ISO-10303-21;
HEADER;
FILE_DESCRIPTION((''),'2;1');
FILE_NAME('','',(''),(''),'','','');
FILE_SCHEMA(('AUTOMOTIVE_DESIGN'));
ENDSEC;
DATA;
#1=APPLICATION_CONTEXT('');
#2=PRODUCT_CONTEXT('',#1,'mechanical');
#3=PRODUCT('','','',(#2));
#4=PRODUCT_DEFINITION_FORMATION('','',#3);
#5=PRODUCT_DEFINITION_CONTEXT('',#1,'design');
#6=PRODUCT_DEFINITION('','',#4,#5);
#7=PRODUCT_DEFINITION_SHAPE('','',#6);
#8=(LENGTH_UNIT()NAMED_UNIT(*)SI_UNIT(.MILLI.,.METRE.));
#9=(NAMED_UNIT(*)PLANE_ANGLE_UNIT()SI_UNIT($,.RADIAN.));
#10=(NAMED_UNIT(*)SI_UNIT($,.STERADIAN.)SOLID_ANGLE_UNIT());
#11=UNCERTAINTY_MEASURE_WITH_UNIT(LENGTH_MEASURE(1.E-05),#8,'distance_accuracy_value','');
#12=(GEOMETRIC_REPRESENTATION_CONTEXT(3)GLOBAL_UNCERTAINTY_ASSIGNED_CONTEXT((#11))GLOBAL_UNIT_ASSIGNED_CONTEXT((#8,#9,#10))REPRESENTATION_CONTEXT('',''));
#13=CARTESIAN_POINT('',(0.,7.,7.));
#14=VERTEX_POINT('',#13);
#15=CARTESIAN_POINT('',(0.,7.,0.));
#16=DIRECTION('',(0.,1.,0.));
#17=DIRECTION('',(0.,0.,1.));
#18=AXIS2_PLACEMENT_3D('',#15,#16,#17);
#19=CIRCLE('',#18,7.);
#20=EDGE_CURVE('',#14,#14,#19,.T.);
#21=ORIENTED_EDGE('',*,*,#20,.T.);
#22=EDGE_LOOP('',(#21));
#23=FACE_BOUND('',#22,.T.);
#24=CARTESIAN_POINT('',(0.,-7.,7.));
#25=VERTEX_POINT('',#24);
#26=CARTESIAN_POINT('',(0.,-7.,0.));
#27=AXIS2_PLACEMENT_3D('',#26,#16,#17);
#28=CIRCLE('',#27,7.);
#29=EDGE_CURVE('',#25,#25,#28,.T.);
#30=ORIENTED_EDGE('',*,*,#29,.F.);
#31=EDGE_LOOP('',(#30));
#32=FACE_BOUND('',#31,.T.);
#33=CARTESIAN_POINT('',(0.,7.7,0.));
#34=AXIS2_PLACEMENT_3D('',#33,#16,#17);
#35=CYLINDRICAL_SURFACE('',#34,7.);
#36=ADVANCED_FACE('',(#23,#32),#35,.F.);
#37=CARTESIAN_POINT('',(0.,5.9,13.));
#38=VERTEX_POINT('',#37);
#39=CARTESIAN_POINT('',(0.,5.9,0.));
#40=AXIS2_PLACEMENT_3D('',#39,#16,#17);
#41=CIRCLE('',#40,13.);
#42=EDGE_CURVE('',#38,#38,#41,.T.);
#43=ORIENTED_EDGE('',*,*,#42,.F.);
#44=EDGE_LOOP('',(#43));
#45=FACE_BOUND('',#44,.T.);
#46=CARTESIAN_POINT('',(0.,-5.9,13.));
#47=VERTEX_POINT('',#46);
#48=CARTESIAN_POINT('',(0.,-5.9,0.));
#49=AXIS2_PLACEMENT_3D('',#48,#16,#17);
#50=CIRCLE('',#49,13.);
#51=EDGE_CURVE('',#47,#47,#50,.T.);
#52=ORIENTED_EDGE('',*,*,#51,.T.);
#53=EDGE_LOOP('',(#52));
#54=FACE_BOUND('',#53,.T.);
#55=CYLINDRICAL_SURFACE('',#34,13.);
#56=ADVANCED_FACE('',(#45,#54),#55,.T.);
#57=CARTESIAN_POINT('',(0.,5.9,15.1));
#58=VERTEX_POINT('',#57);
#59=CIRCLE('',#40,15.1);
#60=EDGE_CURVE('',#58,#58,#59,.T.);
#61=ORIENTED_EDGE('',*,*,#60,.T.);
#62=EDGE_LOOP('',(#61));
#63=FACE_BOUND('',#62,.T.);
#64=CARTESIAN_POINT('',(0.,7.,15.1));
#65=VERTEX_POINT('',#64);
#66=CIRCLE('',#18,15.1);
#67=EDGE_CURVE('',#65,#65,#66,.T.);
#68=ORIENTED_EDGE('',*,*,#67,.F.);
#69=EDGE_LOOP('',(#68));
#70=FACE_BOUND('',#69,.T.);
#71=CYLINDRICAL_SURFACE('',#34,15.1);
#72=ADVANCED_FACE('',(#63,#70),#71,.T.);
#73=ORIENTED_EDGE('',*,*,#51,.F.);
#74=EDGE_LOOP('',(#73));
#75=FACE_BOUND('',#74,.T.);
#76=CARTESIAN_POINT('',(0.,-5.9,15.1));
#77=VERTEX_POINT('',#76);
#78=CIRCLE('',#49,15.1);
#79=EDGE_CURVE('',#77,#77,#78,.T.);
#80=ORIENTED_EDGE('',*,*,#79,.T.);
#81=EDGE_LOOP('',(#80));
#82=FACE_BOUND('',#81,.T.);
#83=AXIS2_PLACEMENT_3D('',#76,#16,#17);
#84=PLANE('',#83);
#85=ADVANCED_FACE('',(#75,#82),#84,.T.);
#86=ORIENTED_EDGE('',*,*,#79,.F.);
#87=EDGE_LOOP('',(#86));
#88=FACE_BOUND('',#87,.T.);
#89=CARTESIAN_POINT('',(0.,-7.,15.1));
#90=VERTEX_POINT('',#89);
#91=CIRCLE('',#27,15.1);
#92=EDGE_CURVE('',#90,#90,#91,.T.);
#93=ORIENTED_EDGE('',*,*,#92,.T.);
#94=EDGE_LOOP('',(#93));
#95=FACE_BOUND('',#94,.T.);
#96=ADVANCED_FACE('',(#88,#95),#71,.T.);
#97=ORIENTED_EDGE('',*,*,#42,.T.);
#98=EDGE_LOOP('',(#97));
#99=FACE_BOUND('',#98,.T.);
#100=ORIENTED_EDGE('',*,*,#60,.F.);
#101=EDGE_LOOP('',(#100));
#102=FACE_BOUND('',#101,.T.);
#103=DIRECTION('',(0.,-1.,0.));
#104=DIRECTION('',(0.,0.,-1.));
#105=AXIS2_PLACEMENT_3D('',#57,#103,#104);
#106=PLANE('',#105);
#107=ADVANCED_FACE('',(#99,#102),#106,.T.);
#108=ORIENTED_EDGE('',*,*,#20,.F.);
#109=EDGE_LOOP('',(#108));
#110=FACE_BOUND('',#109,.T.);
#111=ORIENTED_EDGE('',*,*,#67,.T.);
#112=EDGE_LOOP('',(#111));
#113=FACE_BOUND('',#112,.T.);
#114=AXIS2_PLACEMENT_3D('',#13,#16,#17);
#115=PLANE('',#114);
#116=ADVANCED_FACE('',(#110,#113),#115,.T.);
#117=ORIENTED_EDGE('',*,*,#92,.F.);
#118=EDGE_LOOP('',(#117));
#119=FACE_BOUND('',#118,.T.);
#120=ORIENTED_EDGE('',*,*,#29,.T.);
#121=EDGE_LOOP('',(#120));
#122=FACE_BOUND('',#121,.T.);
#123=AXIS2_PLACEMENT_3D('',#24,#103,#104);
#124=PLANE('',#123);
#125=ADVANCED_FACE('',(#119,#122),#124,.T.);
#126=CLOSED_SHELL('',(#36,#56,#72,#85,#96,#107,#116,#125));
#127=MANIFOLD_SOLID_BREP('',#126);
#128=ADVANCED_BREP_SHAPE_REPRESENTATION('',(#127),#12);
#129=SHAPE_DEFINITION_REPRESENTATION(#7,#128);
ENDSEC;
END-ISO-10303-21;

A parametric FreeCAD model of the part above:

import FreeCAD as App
import Part
import Sketcher
Q = App.Units.Quantity


def add_polygon(sketch, points):
    """Adds a closed chain of lines whose ends are joined by coincident constraints."""
    first, n = sketch.GeometryCount, len(points)
    for a, b in zip(points, points[1:] + points[:1]):
        sketch.addGeometry(Part.LineSegment(App.Vector(*a, 0), App.Vector(*b, 0)), False)
    for i in range(n):
        sketch.addConstraint(Sketcher.Constraint("Coincident", first + i, 2, first + (i + 1) % n, 1))

doc = App.newDocument("Part")
body = doc.addObject("PartDesign::Body", "Body")

# Sketch on YZ plane
sketch1 = body.newObject("Sketcher::SketchObject", "Sketch")
sketch1.AttachmentSupport = (doc.getObject("YZ_Plane"), [""])
sketch1.MapMode = "FlatFace"
add_polygon(sketch1, [(-7, 7), (7, 7), (7, 15.1), (5.9, 15.1), (5.9, 13), (-5.9, 13), (-5.9, 15.1), (-7, 15.1)])  # lines 0-7
sketch1.addConstraint([
    Sketcher.Constraint("Horizontal", 0),
    Sketcher.Constraint("Vertical", 1),
    Sketcher.Constraint("Horizontal", 2),
    Sketcher.Constraint("Vertical", 3),
    Sketcher.Constraint("Horizontal", 4),
    Sketcher.Constraint("Vertical", 5),
    Sketcher.Constraint("Horizontal", 6),
    Sketcher.Constraint("Vertical", 7),
    Sketcher.Constraint("Symmetric", 2, 2, 5, 2, -2),
    Sketcher.Constraint("Equal", 2, 6),
    Sketcher.Constraint("DistanceX", 0, 1, 0, 2, Q("14 mm")),
    Sketcher.Constraint("DistanceX", 2, 2, 2, 1, Q("1.1 mm")),
    Sketcher.Constraint("DistanceY", 1, 1, 1, 2, Q("8.1 mm")),
    Sketcher.Constraint("DistanceY", 3, 2, 3, 1, Q("2.1 mm")),
    Sketcher.Constraint("DistanceY", -1, 1, 0, 2, Q("7 mm")),
])
revolution = body.newObject("PartDesign::Revolution", "Revolution")
revolution.Profile = sketch1
revolution.ReferenceAxis = (sketch1, ["H_Axis"])
revolution.Angle = 360

doc.recompute()
